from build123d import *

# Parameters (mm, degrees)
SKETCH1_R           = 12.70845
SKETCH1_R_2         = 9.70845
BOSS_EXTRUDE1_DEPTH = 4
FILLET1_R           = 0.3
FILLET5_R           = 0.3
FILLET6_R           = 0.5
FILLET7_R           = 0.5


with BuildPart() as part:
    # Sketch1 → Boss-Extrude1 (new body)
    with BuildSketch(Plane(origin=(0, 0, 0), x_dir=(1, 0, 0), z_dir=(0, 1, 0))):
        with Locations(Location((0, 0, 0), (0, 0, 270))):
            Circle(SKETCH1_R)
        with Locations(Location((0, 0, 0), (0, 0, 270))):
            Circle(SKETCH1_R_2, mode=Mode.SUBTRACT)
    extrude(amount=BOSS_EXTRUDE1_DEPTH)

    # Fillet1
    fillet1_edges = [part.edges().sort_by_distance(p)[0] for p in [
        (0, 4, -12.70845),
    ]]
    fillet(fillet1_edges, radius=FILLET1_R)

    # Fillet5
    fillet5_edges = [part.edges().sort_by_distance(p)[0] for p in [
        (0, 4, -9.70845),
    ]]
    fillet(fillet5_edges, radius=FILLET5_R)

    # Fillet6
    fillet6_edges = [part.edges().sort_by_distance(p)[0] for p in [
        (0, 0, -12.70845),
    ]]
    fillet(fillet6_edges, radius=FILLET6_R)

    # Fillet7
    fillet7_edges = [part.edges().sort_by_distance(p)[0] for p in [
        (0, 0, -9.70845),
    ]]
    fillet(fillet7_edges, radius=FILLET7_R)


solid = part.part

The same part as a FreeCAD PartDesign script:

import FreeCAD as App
import Part
import Sketcher
Q = App.Units.Quantity


def edges_at(feature, points):
    """Names of the edges that pass closest to the given points."""
    edges = feature.Shape.Edges
    near = lambda p: min(range(len(edges)), key=lambda i: edges[i].distToShape(Part.Vertex(*p))[0])
    return sorted({f"Edge{near(p) + 1}" for p in points})

doc = App.newDocument("Part")
body = doc.addObject("PartDesign::Body", "Body")

sketch1 = body.newObject("Sketcher::SketchObject", "Sketch")
sketch1.AttachmentSupport = (doc.getObject("XZ_Plane"), [""])
sketch1.MapMode = "FlatFace"
sketch1.addGeometry(Part.Circle(App.Vector(0, 0, 0), App.Vector(0, 0, 1), 12.70845), False)
sketch1.addGeometry(Part.Circle(App.Vector(0, 0, 0), App.Vector(0, 0, 1), 9.70845), False)
sketch1.addConstraint(Sketcher.Constraint("Coincident", 0, 3, -1, 1))
sketch1.addConstraint(Sketcher.Constraint("Coincident", 1, 3, -1, 1))
sketch1.addConstraint(Sketcher.Constraint("Diameter", 0, Q("25.4169 mm")))
sketch1.addConstraint(Sketcher.Constraint("Diameter", 1, Q("19.4169 mm")))
pad1 = body.newObject("PartDesign::Pad", "Pad")
pad1.Profile = sketch1
pad1.Length = 4
pad1.Reversed = True
doc.recompute()

fillet = body.newObject("PartDesign::Fillet", "Fillet")
fillet.Base = (pad1, edges_at(pad1, [(0, 4, -12.708)]))
fillet.Radius = 0.3
doc.recompute()

fillet2 = body.newObject("PartDesign::Fillet", "Fillet001")
fillet2.Base = (fillet, edges_at(fillet, [(0, 4, -9.708)]))
fillet2.Radius = 0.3
doc.recompute()

fillet3 = body.newObject("PartDesign::Fillet", "Fillet002")
fillet3.Base = (fillet2, edges_at(fillet2, [(0, 0, -12.708)]))
fillet3.Radius = 0.5
doc.recompute()

fillet4 = body.newObject("PartDesign::Fillet", "Fillet003")
fillet4.Base = (fillet3, edges_at(fillet3, [(0, 0, -9.708)]))
fillet4.Radius = 0.5

doc.recompute()
